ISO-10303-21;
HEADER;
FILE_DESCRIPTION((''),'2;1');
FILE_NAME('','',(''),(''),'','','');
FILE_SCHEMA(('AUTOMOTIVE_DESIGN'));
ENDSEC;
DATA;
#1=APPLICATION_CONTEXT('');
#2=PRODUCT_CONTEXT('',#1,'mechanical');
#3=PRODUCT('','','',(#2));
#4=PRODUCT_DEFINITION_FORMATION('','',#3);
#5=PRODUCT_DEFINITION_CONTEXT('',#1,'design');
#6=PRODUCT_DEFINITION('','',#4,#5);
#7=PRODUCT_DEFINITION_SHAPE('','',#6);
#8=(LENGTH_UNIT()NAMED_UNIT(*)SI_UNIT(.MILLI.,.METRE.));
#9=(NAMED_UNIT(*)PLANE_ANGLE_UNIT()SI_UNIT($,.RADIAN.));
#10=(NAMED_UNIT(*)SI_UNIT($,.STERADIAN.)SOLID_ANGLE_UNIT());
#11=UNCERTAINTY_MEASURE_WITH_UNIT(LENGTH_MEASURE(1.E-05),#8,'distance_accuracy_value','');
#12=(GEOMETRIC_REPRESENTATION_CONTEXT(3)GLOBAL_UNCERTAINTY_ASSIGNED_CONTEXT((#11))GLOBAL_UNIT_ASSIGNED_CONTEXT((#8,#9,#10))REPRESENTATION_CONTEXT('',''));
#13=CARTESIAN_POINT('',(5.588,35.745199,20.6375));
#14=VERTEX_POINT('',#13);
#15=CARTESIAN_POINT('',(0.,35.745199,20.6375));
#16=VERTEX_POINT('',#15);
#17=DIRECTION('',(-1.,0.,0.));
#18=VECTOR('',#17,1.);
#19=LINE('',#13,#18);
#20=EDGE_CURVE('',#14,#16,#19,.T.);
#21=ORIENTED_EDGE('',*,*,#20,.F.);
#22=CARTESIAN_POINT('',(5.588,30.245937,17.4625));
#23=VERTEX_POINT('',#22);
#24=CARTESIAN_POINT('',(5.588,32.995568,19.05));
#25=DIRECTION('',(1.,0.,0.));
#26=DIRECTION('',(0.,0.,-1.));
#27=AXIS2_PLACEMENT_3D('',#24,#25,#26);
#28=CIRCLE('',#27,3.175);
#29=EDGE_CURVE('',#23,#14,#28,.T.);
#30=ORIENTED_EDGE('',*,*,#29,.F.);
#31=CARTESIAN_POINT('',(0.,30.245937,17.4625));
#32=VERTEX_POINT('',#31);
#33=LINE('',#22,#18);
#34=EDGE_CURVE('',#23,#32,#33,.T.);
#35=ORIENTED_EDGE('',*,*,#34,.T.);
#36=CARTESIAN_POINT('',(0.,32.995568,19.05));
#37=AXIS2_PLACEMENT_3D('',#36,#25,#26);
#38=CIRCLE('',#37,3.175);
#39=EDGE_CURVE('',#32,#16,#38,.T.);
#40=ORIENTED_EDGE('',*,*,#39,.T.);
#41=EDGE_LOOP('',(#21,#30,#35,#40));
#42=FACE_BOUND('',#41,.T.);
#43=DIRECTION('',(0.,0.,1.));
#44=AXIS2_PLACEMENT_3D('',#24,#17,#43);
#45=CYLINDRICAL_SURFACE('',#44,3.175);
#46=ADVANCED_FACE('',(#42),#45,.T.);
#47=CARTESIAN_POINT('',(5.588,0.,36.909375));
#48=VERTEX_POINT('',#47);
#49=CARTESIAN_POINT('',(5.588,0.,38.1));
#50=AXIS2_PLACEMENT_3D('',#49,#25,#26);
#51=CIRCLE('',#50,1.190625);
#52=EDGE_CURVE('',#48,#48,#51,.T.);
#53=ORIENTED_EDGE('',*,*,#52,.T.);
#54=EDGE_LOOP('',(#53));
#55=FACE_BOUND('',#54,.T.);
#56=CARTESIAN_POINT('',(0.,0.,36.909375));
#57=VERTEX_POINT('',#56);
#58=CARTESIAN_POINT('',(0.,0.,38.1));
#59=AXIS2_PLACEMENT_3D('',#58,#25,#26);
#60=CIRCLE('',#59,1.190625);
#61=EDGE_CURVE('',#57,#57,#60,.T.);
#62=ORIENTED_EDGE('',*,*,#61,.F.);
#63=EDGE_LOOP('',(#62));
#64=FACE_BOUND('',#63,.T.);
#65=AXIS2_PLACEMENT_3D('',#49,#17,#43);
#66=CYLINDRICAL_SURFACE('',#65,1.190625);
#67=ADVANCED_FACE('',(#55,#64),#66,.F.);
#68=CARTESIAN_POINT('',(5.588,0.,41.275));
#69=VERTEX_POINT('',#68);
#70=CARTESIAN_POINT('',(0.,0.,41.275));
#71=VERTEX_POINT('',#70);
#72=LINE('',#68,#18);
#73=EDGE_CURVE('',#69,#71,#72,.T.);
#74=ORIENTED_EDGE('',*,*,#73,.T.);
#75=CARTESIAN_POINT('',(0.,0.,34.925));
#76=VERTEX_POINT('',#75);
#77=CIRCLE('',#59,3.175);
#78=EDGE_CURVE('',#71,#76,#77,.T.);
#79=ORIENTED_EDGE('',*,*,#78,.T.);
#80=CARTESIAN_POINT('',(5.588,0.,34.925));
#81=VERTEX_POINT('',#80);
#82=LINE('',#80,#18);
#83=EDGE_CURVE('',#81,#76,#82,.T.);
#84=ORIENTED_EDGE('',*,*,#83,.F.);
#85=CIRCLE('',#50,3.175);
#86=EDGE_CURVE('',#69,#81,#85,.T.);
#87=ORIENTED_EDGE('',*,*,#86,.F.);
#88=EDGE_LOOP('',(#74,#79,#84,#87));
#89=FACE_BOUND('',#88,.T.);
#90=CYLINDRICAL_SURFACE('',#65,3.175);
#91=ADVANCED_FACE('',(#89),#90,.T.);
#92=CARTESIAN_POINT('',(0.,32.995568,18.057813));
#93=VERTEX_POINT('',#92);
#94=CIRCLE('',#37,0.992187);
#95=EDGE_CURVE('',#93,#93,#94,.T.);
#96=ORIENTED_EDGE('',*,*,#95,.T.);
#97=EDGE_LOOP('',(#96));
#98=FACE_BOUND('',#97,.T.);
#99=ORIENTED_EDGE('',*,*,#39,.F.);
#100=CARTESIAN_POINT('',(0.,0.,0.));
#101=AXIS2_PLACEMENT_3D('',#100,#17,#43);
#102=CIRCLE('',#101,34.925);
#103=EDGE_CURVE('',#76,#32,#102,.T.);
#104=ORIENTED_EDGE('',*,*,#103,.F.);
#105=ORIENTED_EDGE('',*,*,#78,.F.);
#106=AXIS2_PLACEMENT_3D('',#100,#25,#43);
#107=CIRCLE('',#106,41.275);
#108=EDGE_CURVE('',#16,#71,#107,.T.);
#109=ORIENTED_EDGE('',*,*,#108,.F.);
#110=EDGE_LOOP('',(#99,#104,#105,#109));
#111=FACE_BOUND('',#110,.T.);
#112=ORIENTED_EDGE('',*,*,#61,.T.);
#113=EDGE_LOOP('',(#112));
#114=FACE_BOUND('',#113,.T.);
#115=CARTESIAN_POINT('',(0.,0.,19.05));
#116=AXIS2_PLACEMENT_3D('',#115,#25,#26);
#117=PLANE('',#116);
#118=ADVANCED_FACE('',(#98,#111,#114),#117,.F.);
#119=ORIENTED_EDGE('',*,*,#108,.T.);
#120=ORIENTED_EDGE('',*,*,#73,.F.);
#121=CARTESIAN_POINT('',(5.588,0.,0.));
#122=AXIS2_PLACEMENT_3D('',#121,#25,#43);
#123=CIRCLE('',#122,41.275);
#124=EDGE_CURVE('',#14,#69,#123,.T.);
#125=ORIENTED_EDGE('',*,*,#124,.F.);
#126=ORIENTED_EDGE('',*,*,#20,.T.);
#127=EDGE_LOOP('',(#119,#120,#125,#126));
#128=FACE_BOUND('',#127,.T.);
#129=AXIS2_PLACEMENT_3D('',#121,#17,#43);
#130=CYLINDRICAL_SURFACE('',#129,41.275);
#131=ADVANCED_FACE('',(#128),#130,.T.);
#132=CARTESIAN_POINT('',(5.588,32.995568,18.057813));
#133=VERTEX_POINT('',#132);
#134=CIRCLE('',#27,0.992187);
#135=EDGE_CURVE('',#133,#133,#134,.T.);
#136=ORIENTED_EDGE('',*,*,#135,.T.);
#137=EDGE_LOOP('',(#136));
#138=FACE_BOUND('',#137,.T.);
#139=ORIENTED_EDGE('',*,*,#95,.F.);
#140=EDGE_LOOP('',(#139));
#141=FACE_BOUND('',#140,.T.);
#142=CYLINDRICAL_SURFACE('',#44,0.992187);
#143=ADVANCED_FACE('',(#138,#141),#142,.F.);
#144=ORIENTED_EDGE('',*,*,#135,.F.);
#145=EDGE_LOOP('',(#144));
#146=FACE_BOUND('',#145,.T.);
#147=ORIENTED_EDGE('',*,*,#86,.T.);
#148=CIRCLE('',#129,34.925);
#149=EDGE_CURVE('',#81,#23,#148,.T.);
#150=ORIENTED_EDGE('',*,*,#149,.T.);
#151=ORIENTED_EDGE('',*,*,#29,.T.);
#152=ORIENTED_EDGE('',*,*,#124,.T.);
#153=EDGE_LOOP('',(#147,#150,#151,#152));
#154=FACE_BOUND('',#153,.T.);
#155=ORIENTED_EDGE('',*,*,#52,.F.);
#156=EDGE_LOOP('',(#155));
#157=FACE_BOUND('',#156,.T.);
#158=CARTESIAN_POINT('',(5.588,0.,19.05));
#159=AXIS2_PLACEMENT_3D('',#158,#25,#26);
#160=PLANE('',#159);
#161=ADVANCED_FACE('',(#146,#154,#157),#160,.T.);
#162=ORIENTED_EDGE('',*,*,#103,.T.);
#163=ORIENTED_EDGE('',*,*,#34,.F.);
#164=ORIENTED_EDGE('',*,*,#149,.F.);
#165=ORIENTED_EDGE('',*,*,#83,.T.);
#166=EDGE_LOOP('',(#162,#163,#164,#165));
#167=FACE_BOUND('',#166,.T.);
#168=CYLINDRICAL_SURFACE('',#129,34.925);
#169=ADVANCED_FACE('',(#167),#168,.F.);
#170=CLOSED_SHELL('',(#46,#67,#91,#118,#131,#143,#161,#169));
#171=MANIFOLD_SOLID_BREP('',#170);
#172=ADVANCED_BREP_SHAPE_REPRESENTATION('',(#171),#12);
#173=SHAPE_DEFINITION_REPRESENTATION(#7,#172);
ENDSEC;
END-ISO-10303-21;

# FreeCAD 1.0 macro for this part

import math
import FreeCAD as App
import Part
import Sketcher
Q = App.Units.Quantity

doc = App.newDocument("Part")
params = doc.addObject("Spreadsheet::Sheet", "Params")
for row, (alias, value) in enumerate([
    ("sketch1_diameter", "0.09375 in"),
    ("sketch1_diameter2", "0.078125 in"),
    ("sketch1_radius", "1.375 in"),
    ("sketch1_radius2", "0.125 in"),
    ("pad1_length", "0.22 in"),
], start=1):
    params.set(f"A{row}", alias)
    params.set(f"B{row}", "=" + value)
    params.setAlias(f"B{row}", alias)

body = doc.addObject("PartDesign::Body", "Body")

sketch1 = body.newObject("Sketcher::SketchObject", "Sketch")
sketch1.AttachmentSupport = (doc.getObject("YZ_Plane"), [""])
sketch1.MapMode = "FlatFace"
sketch1.addGeometry(Part.ArcOfCircle(Part.Circle(App.Vector(0, 0, 0), App.Vector(0, 0, 1), 34.9), math.radians(30), math.radians(90)), False)
sketch1.addGeometry(Part.ArcOfCircle(Part.Circle(App.Vector(33, 19.1, 0), App.Vector(0, 0, 1), 3.2), math.radians(-150), math.radians(30)), False)
sketch1.addGeometry(Part.ArcOfCircle(Part.Circle(App.Vector(0, 0, 0), App.Vector(0, 0, 1), 41.3), math.radians(30), math.radians(90)), False)
sketch1.addGeometry(Part.ArcOfCircle(Part.Circle(App.Vector(0, 38.1, 0), App.Vector(0, 0, 1), 3.2), math.radians(90), math.radians(270)), False)
sketch1.addGeometry(Part.Circle(App.Vector(0, 38.1, 0), App.Vector(0, 0, 1), 1.2), False)
sketch1.addGeometry(Part.Circle(App.Vector(33, 19.1, 0), App.Vector(0, 0, 1), 1), False)
sketch1.addConstraint(Sketcher.Constraint("Tangent", 0, 1, 1, 1))
sketch1.addConstraint(Sketcher.Constraint("Tangent", 1, 2, 2, 1))
sketch1.addConstraint(Sketcher.Constraint("Tangent", 2, 2, 3, 1))
sketch1.addConstraint(Sketcher.Constraint("Tangent", 3, 2, 0, 2))
sketch1.addConstraint(Sketcher.Constraint("Coincident", 0, 3, -1, 1))
sketch1.addConstraint(Sketcher.Constraint("Coincident", 2, 3, -1, 1))
sketch1.addConstraint(Sketcher.Constraint("Coincident", 4, 3, 3, 3))
sketch1.addConstraint(Sketcher.Constraint("Coincident", 5, 3, 1, 3))
sketch1.addConstraint(Sketcher.Constraint("PointOnObject", 3, 3, -2))
sketch1.addConstraint(Sketcher.Constraint("Diameter", 4, Q("0.09375 in")))
sketch1.addConstraint(Sketcher.Constraint("Diameter", 5, Q("0.078125 in")))
sketch1.addConstraint(Sketcher.Constraint("Radius", 0, Q("1.375 in")))
sketch1.addConstraint(Sketcher.Constraint("Radius", 1, Q("0.125 in")))
sketch1.addConstraint(Sketcher.Constraint("DistanceY", -1, 1, 1, 3, Q("0.75 in")))
sketch1.setExpression("Constraints[9]", "Params.sketch1_diameter")
sketch1.setExpression("Constraints[10]", "Params.sketch1_diameter2")
sketch1.setExpression("Constraints[11]", "Params.sketch1_radius")
sketch1.setExpression("Constraints[12]", "Params.sketch1_radius2")
pad1 = body.newObject("PartDesign::Pad", "Pad")
pad1.Profile = sketch1
pad1.setExpression("Length", "Params.pad1_length")

doc.recompute()
